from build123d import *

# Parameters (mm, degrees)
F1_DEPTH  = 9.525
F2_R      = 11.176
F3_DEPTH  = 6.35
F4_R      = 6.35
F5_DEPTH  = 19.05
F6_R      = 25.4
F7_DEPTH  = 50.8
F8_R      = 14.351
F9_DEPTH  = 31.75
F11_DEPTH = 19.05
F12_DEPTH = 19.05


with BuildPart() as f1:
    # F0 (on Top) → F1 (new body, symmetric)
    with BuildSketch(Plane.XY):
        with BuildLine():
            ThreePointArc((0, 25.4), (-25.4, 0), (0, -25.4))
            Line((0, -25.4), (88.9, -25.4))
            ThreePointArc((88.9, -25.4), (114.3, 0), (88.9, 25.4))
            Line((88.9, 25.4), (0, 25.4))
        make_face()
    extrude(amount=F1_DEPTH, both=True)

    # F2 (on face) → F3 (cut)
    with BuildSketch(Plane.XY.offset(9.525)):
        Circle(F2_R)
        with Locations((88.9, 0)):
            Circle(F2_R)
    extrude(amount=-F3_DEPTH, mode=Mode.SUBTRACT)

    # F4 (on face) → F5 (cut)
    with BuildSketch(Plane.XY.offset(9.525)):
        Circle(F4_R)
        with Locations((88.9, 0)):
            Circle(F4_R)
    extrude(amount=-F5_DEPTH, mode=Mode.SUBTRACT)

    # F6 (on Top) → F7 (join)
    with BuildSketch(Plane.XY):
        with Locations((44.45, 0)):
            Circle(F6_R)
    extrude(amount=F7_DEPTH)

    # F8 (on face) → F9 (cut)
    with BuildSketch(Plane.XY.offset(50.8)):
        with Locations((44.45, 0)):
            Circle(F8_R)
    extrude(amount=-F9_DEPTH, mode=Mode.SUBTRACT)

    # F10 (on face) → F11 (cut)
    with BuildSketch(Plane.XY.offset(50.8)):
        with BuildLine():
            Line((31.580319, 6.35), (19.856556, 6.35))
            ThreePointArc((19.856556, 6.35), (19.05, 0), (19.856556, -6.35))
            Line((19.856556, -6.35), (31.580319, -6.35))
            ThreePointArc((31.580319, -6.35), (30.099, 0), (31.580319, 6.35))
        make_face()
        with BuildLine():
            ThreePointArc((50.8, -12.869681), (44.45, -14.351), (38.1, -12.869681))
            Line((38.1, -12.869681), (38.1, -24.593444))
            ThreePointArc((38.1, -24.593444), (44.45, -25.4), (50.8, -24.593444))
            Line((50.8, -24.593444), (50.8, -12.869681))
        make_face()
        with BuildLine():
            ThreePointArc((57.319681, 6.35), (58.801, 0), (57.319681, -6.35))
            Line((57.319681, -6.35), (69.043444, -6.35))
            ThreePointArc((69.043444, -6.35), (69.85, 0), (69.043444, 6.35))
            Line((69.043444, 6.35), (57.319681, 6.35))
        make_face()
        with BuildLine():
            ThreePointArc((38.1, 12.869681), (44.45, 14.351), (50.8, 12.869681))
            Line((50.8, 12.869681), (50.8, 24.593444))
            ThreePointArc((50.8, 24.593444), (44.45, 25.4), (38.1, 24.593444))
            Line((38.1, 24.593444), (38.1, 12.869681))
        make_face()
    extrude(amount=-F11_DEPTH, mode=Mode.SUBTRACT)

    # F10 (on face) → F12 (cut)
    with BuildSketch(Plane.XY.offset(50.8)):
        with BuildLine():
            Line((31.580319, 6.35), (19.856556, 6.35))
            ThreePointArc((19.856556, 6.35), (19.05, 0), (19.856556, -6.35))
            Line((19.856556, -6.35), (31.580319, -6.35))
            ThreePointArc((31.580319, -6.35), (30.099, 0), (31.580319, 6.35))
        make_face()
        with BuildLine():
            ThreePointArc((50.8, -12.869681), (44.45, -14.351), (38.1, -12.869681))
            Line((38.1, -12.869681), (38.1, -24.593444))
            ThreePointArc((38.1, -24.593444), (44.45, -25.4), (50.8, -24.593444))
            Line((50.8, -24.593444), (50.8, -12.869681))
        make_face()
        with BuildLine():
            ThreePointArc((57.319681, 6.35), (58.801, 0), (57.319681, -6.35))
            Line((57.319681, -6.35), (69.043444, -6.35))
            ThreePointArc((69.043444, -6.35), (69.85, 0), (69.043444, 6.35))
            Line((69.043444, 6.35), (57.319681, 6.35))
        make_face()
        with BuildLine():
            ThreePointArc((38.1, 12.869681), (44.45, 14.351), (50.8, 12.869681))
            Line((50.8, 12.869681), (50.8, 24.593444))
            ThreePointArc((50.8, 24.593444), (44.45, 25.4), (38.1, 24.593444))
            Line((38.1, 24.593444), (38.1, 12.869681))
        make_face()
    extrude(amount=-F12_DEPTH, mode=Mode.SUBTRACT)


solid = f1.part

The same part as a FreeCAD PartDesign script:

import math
import FreeCAD as App
import Part
import Sketcher

V = App.Vector
Q = App.Units.Quantity

doc = App.newDocument("Part")
params = doc.addObject("Spreadsheet::Sheet", "Params")
for row, (alias, value) in enumerate([
    ("sketch1_radius", "1 in"),
    ("sketch1_width", "3.5 in"),
    ("pad1_length", "0.75 in"),
    ("sketch2_diameter", "0.88 in"),
    ("pocket1_length", "0.25 in"),
    ("sketch3_diameter", "0.5 in"),
    ("pocket2_length", "0.75 in"),
    ("sketch4_diameter", "2 in"),
    ("pad2_length", "2 in"),
    ("sketch5_diameter", "1.13 in"),
    ("pocket3_length", "1.25 in"),
    ("sketch6_radius", "0.5649998 in"),
    ("pocket4_length", "0.75 in"),
    ("sketch7_radius", "0.5649998 in"),
    ("pocket5_length", "0.75 in"),
], start=1):
    params.set(f"A{row}", alias)
    params.set(f"B{row}", "=" + value)
    params.setAlias(f"B{row}", alias)

body = doc.addObject("PartDesign::Body", "Body")

sketch1 = doc.addObject("Sketcher::SketchObject", "Sketch")
body.addObject(sketch1)
sketch1.AttachmentSupport = (doc.XY_Plane, [""])
sketch1.MapMode = "FlatFace"
sketch1.addGeometry(Part.ArcOfCircle(Part.Circle(V(0, 0, 0), V(0, 0, 1), 25.4), math.radians(90), math.radians(270)), False)
sketch1.addGeometry(Part.LineSegment(V(0, -25.4, 0), V(88.9, -25.4, 0)), False)
sketch1.addGeometry(Part.ArcOfCircle(Part.Circle(V(88.9, 0, 0), V(0, 0, 1), 25.4), math.radians(-90), math.radians(90)), False)
sketch1.addGeometry(Part.LineSegment(V(88.9, 25.4, 0), V(0, 25.4, 0)), False)
sketch1.addConstraint(Sketcher.Constraint("Tangent", 0, 2, 1, 1))
sketch1.addConstraint(Sketcher.Constraint("Tangent", 1, 2, 2, 1))
sketch1.addConstraint(Sketcher.Constraint("Tangent", 2, 2, 3, 1))
sketch1.addConstraint(Sketcher.Constraint("Tangent", 3, 2, 0, 1))
sketch1.addConstraint(Sketcher.Constraint("Horizontal", 1))
sketch1.addConstraint(Sketcher.Constraint("Horizontal", 3))
sketch1.addConstraint(Sketcher.Constraint("Coincident", 0, 3, -1, 1))
sketch1.addConstraint(Sketcher.Constraint("Radius", 0, Q("1 in")))
sketch1.addConstraint(Sketcher.Constraint("DistanceX", 1, 1, 1, 2, Q("3.5 in")))
sketch1.setExpression("Constraints[7]", "Params.sketch1_radius")
sketch1.setExpression("Constraints[8]", "Params.sketch1_width")
pad1 = doc.addObject("PartDesign::Pad", "Pad")
body.addObject(pad1)
pad1.Profile = sketch1
pad1.setExpression("Length", "Params.pad1_length")
pad1.Midplane = True

sketch2 = doc.addObject("Sketcher::SketchObject", "Sketch001")
body.addObject(sketch2)
sketch2.AttachmentSupport = (doc.XY_Plane, [""])
sketch2.MapMode = "FlatFace"
sketch2.AttachmentOffset = App.Placement(V(0, 0, 0.375 * 25.4), App.Rotation())
sketch2.addGeometry(Part.Circle(V(0, 0, 0), V(0, 0, 1), 11.176), False)
sketch2.addGeometry(Part.Circle(V(88.9, 0, 0), V(0, 0, 1), 11.176), False)
sketch2.addConstraint(Sketcher.Constraint("Coincident", 0, 3, -1, 1))
sketch2.addConstraint(Sketcher.Constraint("Equal", 0, 1))
sketch2.addConstraint(Sketcher.Constraint("PointOnObject", 1, 3, -1))
sketch2.addConstraint(Sketcher.Constraint("Diameter", 0, Q("0.88 in")))
sketch2.addConstraint(Sketcher.Constraint("DistanceX", -1, 1, 1, 3, Q("3.5 in")))
sketch2.setExpression("Constraints[3]", "Params.sketch2_diameter")
pocket1 = doc.addObject("PartDesign::Pocket", "Pocket")
body.addObject(pocket1)
pocket1.Profile = sketch2
pocket1.setExpression("Length", "Params.pocket1_length")

sketch3 = doc.addObject("Sketcher::SketchObject", "Sketch002")
body.addObject(sketch3)
sketch3.AttachmentSupport = (doc.XY_Plane, [""])
sketch3.MapMode = "FlatFace"
sketch3.AttachmentOffset = App.Placement(V(0, 0, 0.375 * 25.4), App.Rotation())
sketch3.addGeometry(Part.Circle(V(0, 0, 0), V(0, 0, 1), 6.35), False)
sketch3.addGeometry(Part.Circle(V(88.9, 0, 0), V(0, 0, 1), 6.35), False)
sketch3.addConstraint(Sketcher.Constraint("Coincident", 0, 3, -1, 1))
sketch3.addConstraint(Sketcher.Constraint("Equal", 0, 1))
sketch3.addConstraint(Sketcher.Constraint("PointOnObject", 1, 3, -1))
sketch3.addConstraint(Sketcher.Constraint("Diameter", 0, Q("0.5 in")))
sketch3.addConstraint(Sketcher.Constraint("DistanceX", -1, 1, 1, 3, Q("3.5 in")))
sketch3.setExpression("Constraints[3]", "Params.sketch3_diameter")
pocket2 = doc.addObject("PartDesign::Pocket", "Pocket001")
body.addObject(pocket2)
pocket2.Profile = sketch3
pocket2.setExpression("Length", "Params.pocket2_length")

sketch4 = doc.addObject("Sketcher::SketchObject", "Sketch003")
body.addObject(sketch4)
sketch4.AttachmentSupport = (doc.XY_Plane, [""])
sketch4.MapMode = "FlatFace"
sketch4.addGeometry(Part.Circle(V(44.45, 0, 0), V(0, 0, 1), 25.4), False)
sketch4.addConstraint(Sketcher.Constraint("PointOnObject", 0, 3, -1))
sketch4.addConstraint(Sketcher.Constraint("Diameter", 0, Q("2 in")))
sketch4.addConstraint(Sketcher.Constraint("DistanceX", -1, 1, 0, 3, Q("1.75 in")))
sketch4.setExpression("Constraints[1]", "Params.sketch4_diameter")
pad2 = doc.addObject("PartDesign::Pad", "Pad001")
body.addObject(pad2)
pad2.Profile = sketch4
pad2.setExpression("Length", "Params.pad2_length")

sketch5 = doc.addObject("Sketcher::SketchObject", "Sketch004")
body.addObject(sketch5)
sketch5.AttachmentSupport = (doc.XY_Plane, [""])
sketch5.MapMode = "FlatFace"
sketch5.AttachmentOffset = App.Placement(V(0, 0, 2 * 25.4), App.Rotation())
sketch5.addGeometry(Part.Circle(V(44.45, 0, 0), V(0, 0, 1), 14.351), False)
sketch5.addConstraint(Sketcher.Constraint("PointOnObject", 0, 3, -1))
sketch5.addConstraint(Sketcher.Constraint("Diameter", 0, Q("1.13 in")))
sketch5.addConstraint(Sketcher.Constraint("DistanceX", -1, 1, 0, 3, Q("1.75 in")))
sketch5.setExpression("Constraints[1]", "Params.sketch5_diameter")
pocket3 = doc.addObject("PartDesign::Pocket", "Pocket002")
body.addObject(pocket3)
pocket3.Profile = sketch5
pocket3.setExpression("Length", "Params.pocket3_length")

sketch6 = doc.addObject("Sketcher::SketchObject", "Sketch005")
body.addObject(sketch6)
sketch6.AttachmentSupport = (doc.XY_Plane, [""])
sketch6.MapMode = "FlatFace"
sketch6.AttachmentOffset = App.Placement(V(0, 0, 2 * 25.4), App.Rotation())
sketch6.addGeometry(Part.LineSegment(V(31.580319, 6.35, 0), V(19.856556, 6.35, 0)), False)
sketch6.addGeometry(Part.ArcOfCircle(Part.Circle(V(44.449992, 0, 0), V(0, 0, 1), 25.399992), math.radians(165.522483), math.radians(194.477517)), False)
sketch6.addGeometry(Part.LineSegment(V(19.856556, -6.35, 0), V(31.580319, -6.35, 0)), False)
sketch6.addGeometry(Part.ArcOfCircle(Part.Circle(V(44.449996, 0, 0), V(0, 0, 1), 14.350996), math.radians(153.737905), math.radians(206.262095)), False)
sketch6.addGeometry(Part.ArcOfCircle(Part.Circle(V(44.45, -0.000004, 0), V(0, 0, 1), 14.350996), math.radians(-116.262095), math.radians(-63.737905)), False)
sketch6.addGeometry(Part.LineSegment(V(38.1, -12.869681, 0), V(38.1, -24.593444, 0)), False)
sketch6.addGeometry(Part.ArcOfCircle(Part.Circle(V(44.45, -0.000008, 0), V(0, 0, 1), 25.399992), math.radians(-104.477517), math.radians(-75.522483)), False)
sketch6.addGeometry(Part.LineSegment(V(50.8, -24.593444, 0), V(50.8, -12.869681, 0)), False)
sketch6.addGeometry(Part.ArcOfCircle(Part.Circle(V(44.450004, 0, 0), V(0, 0, 1), 14.350996), math.radians(-26.262095), math.radians(26.262095)), False)
sketch6.addGeometry(Part.LineSegment(V(57.319681, -6.35, 0), V(69.043444, -6.35, 0)), False)
sketch6.addGeometry(Part.ArcOfCircle(Part.Circle(V(44.450008, 0, 0), V(0, 0, 1), 25.399992), math.radians(-14.477517), math.radians(14.477517)), False)
sketch6.addGeometry(Part.LineSegment(V(69.043444, 6.35, 0), V(57.319681, 6.35, 0)), False)
sketch6.addGeometry(Part.ArcOfCircle(Part.Circle(V(44.45, 0.000004, 0), V(0, 0, 1), 14.350996), math.radians(63.737905), math.radians(116.262095)), False)
sketch6.addGeometry(Part.LineSegment(V(50.8, 12.869681, 0), V(50.8, 24.593444, 0)), False)
sketch6.addGeometry(Part.ArcOfCircle(Part.Circle(V(44.45, 0.000008, 0), V(0, 0, 1), 25.399992), math.radians(75.522483), math.radians(104.477517)), False)
sketch6.addGeometry(Part.LineSegment(V(38.1, 24.593444, 0), V(38.1, 12.869681, 0)), False)
sketch6.addConstraint(Sketcher.Constraint("Coincident", 0, 2, 1, 1))
sketch6.addConstraint(Sketcher.Constraint("Coincident", 1, 2, 2, 1))
sketch6.addConstraint(Sketcher.Constraint("Coincident", 2, 2, 3, 2))
sketch6.addConstraint(Sketcher.Constraint("Coincident", 3, 1, 0, 1))
sketch6.addConstraint(Sketcher.Constraint("Coincident", 4, 1, 5, 1))
sketch6.addConstraint(Sketcher.Constraint("Coincident", 5, 2, 6, 1))
sketch6.addConstraint(Sketcher.Constraint("Coincident", 6, 2, 7, 1))
sketch6.addConstraint(Sketcher.Constraint("Coincident", 7, 2, 4, 2))
sketch6.addConstraint(Sketcher.Constraint("Coincident", 8, 1, 9, 1))
sketch6.addConstraint(Sketcher.Constraint("Coincident", 9, 2, 10, 1))
sketch6.addConstraint(Sketcher.Constraint("Coincident", 10, 2, 11, 1))
sketch6.addConstraint(Sketcher.Constraint("Coincident", 11, 2, 8, 2))
sketch6.addConstraint(Sketcher.Constraint("Coincident", 12, 1, 13, 1))
sketch6.addConstraint(Sketcher.Constraint("Coincident", 13, 2, 14, 1))
sketch6.addConstraint(Sketcher.Constraint("Coincident", 14, 2, 15, 1))
sketch6.addConstraint(Sketcher.Constraint("Coincident", 15, 2, 12, 2))
sketch6.addConstraint(Sketcher.Constraint("Horizontal", 0))
sketch6.addConstraint(Sketcher.Constraint("Horizontal", 2))
sketch6.addConstraint(Sketcher.Constraint("Vertical", 5))
sketch6.addConstraint(Sketcher.Constraint("Vertical", 7))
sketch6.addConstraint(Sketcher.Constraint("Horizontal", 9))
sketch6.addConstraint(Sketcher.Constraint("Horizontal", 11))
sketch6.addConstraint(Sketcher.Constraint("Vertical", 13))
sketch6.addConstraint(Sketcher.Constraint("Vertical", 15))
sketch6.addConstraint(Sketcher.Constraint("Coincident", 3, 3, 1, 3))
sketch6.addConstraint(Sketcher.Constraint("Coincident", 4, 3, 1, 3))
sketch6.addConstraint(Sketcher.Constraint("Coincident", 6, 3, 3, 3))
sketch6.addConstraint(Sketcher.Constraint("Coincident", 8, 3, 3, 3))
sketch6.addConstraint(Sketcher.Constraint("Coincident", 10, 3, 4, 3))
sketch6.addConstraint(Sketcher.Constraint("Coincident", 12, 3, 1, 3))
sketch6.addConstraint(Sketcher.Constraint("Coincident", 14, 3, 3, 3))
sketch6.addConstraint(Sketcher.Constraint("Equal", 3, 4))
sketch6.addConstraint(Sketcher.Constraint("Equal", 1, 6))
sketch6.addConstraint(Sketcher.Constraint("Equal", 4, 8))
sketch6.addConstraint(Sketcher.Constraint("Equal", 6, 10))
sketch6.addConstraint(Sketcher.Constraint("Equal", 8, 12))
sketch6.addConstraint(Sketcher.Constraint("Equal", 10, 14))
sketch6.addConstraint(Sketcher.Constraint("Symmetric", 0, 2, 1, 2, -1))
sketch6.addConstraint(Sketcher.Constraint("Horizontal", 5, 2, 6, 2))
sketch6.addConstraint(Sketcher.Constraint("Horizontal", 2, 2, 8, 1))
sketch6.addConstraint(Sketcher.Constraint("Horizontal", 3, 1, 10, 2))
sketch6.addConstraint(Sketcher.Constraint("Horizontal", 13, 2, 14, 2))
sketch6.addConstraint(Sketcher.Constraint("Vertical", 7, 2, 12, 1))
sketch6.addConstraint(Sketcher.Constraint("Equal", 11, 5))
sketch6.addConstraint(Sketcher.Constraint("DistanceX", -1, 1, 6, 2, Q("2 in")))
sketch6.addConstraint(Sketcher.Constraint("Radius", 3, Q("0.5649998 in")))
sketch6.addConstraint(Sketcher.Constraint("DistanceX", -1, 1, 4, 1, Q("1.5 in")))
sketch6.addConstraint(Sketcher.Constraint("Radius", 1, 25.399992))
sketch6.setExpression("Constraints[45]", "Params.sketch6_radius")
pocket4 = doc.addObject("PartDesign::Pocket", "Pocket003")
body.addObject(pocket4)
pocket4.Profile = sketch6
pocket4.setExpression("Length", "Params.pocket4_length")

sketch7 = doc.addObject("Sketcher::SketchObject", "Sketch006")
body.addObject(sketch7)
sketch7.AttachmentSupport = (doc.XY_Plane, [""])
sketch7.MapMode = "FlatFace"
sketch7.AttachmentOffset = App.Placement(V(0, 0, 2 * 25.4), App.Rotation())
sketch7.addGeometry(Part.LineSegment(V(31.580319, 6.35, 0), V(19.856556, 6.35, 0)), False)
sketch7.addGeometry(Part.ArcOfCircle(Part.Circle(V(44.449992, 0, 0), V(0, 0, 1), 25.399992), math.radians(165.522483), math.radians(194.477517)), False)
sketch7.addGeometry(Part.LineSegment(V(19.856556, -6.35, 0), V(31.580319, -6.35, 0)), False)
sketch7.addGeometry(Part.ArcOfCircle(Part.Circle(V(44.449996, 0, 0), V(0, 0, 1), 14.350996), math.radians(153.737905), math.radians(206.262095)), False)
sketch7.addGeometry(Part.ArcOfCircle(Part.Circle(V(44.45, -0.000004, 0), V(0, 0, 1), 14.350996), math.radians(-116.262095), math.radians(-63.737905)), False)
sketch7.addGeometry(Part.LineSegment(V(38.1, -12.869681, 0), V(38.1, -24.593444, 0)), False)
sketch7.addGeometry(Part.ArcOfCircle(Part.Circle(V(44.45, -0.000008, 0), V(0, 0, 1), 25.399992), math.radians(-104.477517), math.radians(-75.522483)), False)
sketch7.addGeometry(Part.LineSegment(V(50.8, -24.593444, 0), V(50.8, -12.869681, 0)), False)
sketch7.addGeometry(Part.ArcOfCircle(Part.Circle(V(44.450004, 0, 0), V(0, 0, 1), 14.350996), math.radians(-26.262095), math.radians(26.262095)), False)
sketch7.addGeometry(Part.LineSegment(V(57.319681, -6.35, 0), V(69.043444, -6.35, 0)), False)
sketch7.addGeometry(Part.ArcOfCircle(Part.Circle(V(44.450008, 0, 0), V(0, 0, 1), 25.399992), math.radians(-14.477517), math.radians(14.477517)), False)
sketch7.addGeometry(Part.LineSegment(V(69.043444, 6.35, 0), V(57.319681, 6.35, 0)), False)
sketch7.addGeometry(Part.ArcOfCircle(Part.Circle(V(44.45, 0.000004, 0), V(0, 0, 1), 14.350996), math.radians(63.737905), math.radians(116.262095)), False)
sketch7.addGeometry(Part.LineSegment(V(50.8, 12.869681, 0), V(50.8, 24.593444, 0)), False)
sketch7.addGeometry(Part.ArcOfCircle(Part.Circle(V(44.45, 0.000008, 0), V(0, 0, 1), 25.399992), math.radians(75.522483), math.radians(104.477517)), False)
sketch7.addGeometry(Part.LineSegment(V(38.1, 24.593444, 0), V(38.1, 12.869681, 0)), False)
sketch7.addConstraint(Sketcher.Constraint("Coincident", 0, 2, 1, 1))
sketch7.addConstraint(Sketcher.Constraint("Coincident", 1, 2, 2, 1))
sketch7.addConstraint(Sketcher.Constraint("Coincident", 2, 2, 3, 2))
sketch7.addConstraint(Sketcher.Constraint("Coincident", 3, 1, 0, 1))
sketch7.addConstraint(Sketcher.Constraint("Coincident", 4, 1, 5, 1))
sketch7.addConstraint(Sketcher.Constraint("Coincident", 5, 2, 6, 1))
sketch7.addConstraint(Sketcher.Constraint("Coincident", 6, 2, 7, 1))
sketch7.addConstraint(Sketcher.Constraint("Coincident", 7, 2, 4, 2))
sketch7.addConstraint(Sketcher.Constraint("Coincident", 8, 1, 9, 1))
sketch7.addConstraint(Sketcher.Constraint("Coincident", 9, 2, 10, 1))
sketch7.addConstraint(Sketcher.Constraint("Coincident", 10, 2, 11, 1))
sketch7.addConstraint(Sketcher.Constraint("Coincident", 11, 2, 8, 2))
sketch7.addConstraint(Sketcher.Constraint("Coincident", 12, 1, 13, 1))
sketch7.addConstraint(Sketcher.Constraint("Coincident", 13, 2, 14, 1))
sketch7.addConstraint(Sketcher.Constraint("Coincident", 14, 2, 15, 1))
sketch7.addConstraint(Sketcher.Constraint("Coincident", 15, 2, 12, 2))
sketch7.addConstraint(Sketcher.Constraint("Horizontal", 0))
sketch7.addConstraint(Sketcher.Constraint("Horizontal", 2))
sketch7.addConstraint(Sketcher.Constraint("Vertical", 5))
sketch7.addConstraint(Sketcher.Constraint("Vertical", 7))
sketch7.addConstraint(Sketcher.Constraint("Horizontal", 9))
sketch7.addConstraint(Sketcher.Constraint("Horizontal", 11))
sketch7.addConstraint(Sketcher.Constraint("Vertical", 13))
sketch7.addConstraint(Sketcher.Constraint("Vertical", 15))
sketch7.addConstraint(Sketcher.Constraint("Coincident", 3, 3, 1, 3))
sketch7.addConstraint(Sketcher.Constraint("Coincident", 4, 3, 1, 3))
sketch7.addConstraint(Sketcher.Constraint("Coincident", 6, 3, 3, 3))
sketch7.addConstraint(Sketcher.Constraint("Coincident", 8, 3, 3, 3))
sketch7.addConstraint(Sketcher.Constraint("Coincident", 10, 3, 4, 3))
sketch7.addConstraint(Sketcher.Constraint("Coincident", 12, 3, 1, 3))
sketch7.addConstraint(Sketcher.Constraint("Coincident", 14, 3, 3, 3))
sketch7.addConstraint(Sketcher.Constraint("Equal", 3, 4))
sketch7.addConstraint(Sketcher.Constraint("Equal", 1, 6))
sketch7.addConstraint(Sketcher.Constraint("Equal", 4, 8))
sketch7.addConstraint(Sketcher.Constraint("Equal", 6, 10))
sketch7.addConstraint(Sketcher.Constraint("Equal", 8, 12))
sketch7.addConstraint(Sketcher.Constraint("Equal", 10, 14))
sketch7.addConstraint(Sketcher.Constraint("Symmetric", 0, 2, 1, 2, -1))
sketch7.addConstraint(Sketcher.Constraint("Horizontal", 5, 2, 6, 2))
sketch7.addConstraint(Sketcher.Constraint("Horizontal", 2, 2, 8, 1))
sketch7.addConstraint(Sketcher.Constraint("Horizontal", 3, 1, 10, 2))
sketch7.addConstraint(Sketcher.Constraint("Horizontal", 13, 2, 14, 2))
sketch7.addConstraint(Sketcher.Constraint("Vertical", 7, 2, 12, 1))
sketch7.addConstraint(Sketcher.Constraint("Equal", 11, 5))
sketch7.addConstraint(Sketcher.Constraint("DistanceX", -1, 1, 6, 2, Q("2 in")))
sketch7.addConstraint(Sketcher.Constraint("Radius", 3, Q("0.5649998 in")))
sketch7.addConstraint(Sketcher.Constraint("DistanceX", -1, 1, 4, 1, Q("1.5 in")))
sketch7.addConstraint(Sketcher.Constraint("Radius", 1, 25.399992))
sketch7.setExpression("Constraints[45]", "Params.sketch7_radius")
pocket5 = doc.addObject("PartDesign::Pocket", "Pocket004")
body.addObject(pocket5)
pocket5.Profile = sketch7
pocket5.setExpression("Length", "Params.pocket5_length")

doc.recompute()
